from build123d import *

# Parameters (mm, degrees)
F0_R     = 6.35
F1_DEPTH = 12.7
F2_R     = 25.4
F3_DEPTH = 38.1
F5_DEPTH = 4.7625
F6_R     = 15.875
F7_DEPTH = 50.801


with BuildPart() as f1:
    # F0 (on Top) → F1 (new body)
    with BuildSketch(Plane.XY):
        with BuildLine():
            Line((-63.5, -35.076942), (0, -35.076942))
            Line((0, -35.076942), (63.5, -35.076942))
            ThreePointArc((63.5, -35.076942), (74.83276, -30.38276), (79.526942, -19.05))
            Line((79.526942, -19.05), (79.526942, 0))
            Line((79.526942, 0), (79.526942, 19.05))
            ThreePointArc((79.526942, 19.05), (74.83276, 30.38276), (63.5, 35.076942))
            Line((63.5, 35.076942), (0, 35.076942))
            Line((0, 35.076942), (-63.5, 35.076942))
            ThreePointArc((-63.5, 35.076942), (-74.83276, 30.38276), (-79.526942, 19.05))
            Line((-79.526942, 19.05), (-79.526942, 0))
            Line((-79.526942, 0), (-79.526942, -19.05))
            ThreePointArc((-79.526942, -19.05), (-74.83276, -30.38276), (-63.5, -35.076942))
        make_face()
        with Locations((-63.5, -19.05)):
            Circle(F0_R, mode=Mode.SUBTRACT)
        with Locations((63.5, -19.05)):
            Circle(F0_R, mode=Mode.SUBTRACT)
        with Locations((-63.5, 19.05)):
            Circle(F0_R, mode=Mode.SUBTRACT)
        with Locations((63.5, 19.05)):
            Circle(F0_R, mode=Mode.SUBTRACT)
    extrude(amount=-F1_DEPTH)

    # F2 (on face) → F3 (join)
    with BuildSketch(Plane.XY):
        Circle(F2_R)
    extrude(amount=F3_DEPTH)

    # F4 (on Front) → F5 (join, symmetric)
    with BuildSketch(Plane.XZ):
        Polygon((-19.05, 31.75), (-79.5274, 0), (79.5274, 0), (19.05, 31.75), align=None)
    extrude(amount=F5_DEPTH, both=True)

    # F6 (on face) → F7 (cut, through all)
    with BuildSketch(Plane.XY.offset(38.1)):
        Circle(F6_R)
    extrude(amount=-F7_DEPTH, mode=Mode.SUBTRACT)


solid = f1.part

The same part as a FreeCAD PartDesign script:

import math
import FreeCAD as App
import Part
import Sketcher
from FreeCAD import Vector
Q = App.Units.Quantity


def add_polygon(sketch, points):
    """Adds a closed chain of lines whose ends are joined by coincident constraints."""
    first, n = sketch.GeometryCount, len(points)
    for a, b in zip(points, points[1:] + points[:1]):
        sketch.addGeometry(Part.LineSegment(App.Vector(*a, 0), App.Vector(*b, 0)), False)
    for i in range(n):
        sketch.addConstraint(Sketcher.Constraint("Coincident", first + i, 2, first + (i + 1) % n, 1))

doc = App.newDocument("Part")
body = doc.addObject("PartDesign::Body", "Body")

# Sketch on XY plane
sketch1 = doc.addObject("Sketcher::SketchObject", "Sketch")
body.addObject(sketch1)
sketch1.AttachmentSupport = (doc.XY_Plane, [""])
sketch1.MapMode = "FlatFace"
sketch1.addGeometry([
    Part.LineSegment(Vector(-64, -35, 0), Vector(64, -35, 0)),  # 0
    Part.ArcOfCircle(Part.Circle(Vector(64, -19, 0), Vector(0, 0, 1), 16), math.radians(-90), math.radians(0)),  # 1
    Part.LineSegment(Vector(80, -19, 0), Vector(80, 19, 0)),  # 2
    Part.ArcOfCircle(Part.Circle(Vector(64, 19, 0), Vector(0, 0, 1), 16), math.radians(0), math.radians(90)),  # 3
    Part.LineSegment(Vector(64, 35, 0), Vector(-64, 35, 0)),  # 4
    Part.ArcOfCircle(Part.Circle(Vector(-64, 19, 0), Vector(0, 0, 1), 16), math.radians(90), math.radians(180)),  # 5
    Part.LineSegment(Vector(-80, 19, 0), Vector(-80, -19, 0)),  # 6
    Part.ArcOfCircle(Part.Circle(Vector(-64, -19, 0), Vector(0, 0, 1), 16), math.radians(180), math.radians(270)),  # 7
    Part.Circle(Vector(-64, -19, 0), Vector(0, 0, 1), 6),  # 8
    Part.Circle(Vector(64, -19, 0), Vector(0, 0, 1), 6),  # 9
    Part.Circle(Vector(-64, 19, 0), Vector(0, 0, 1), 6),  # 10
    Part.Circle(Vector(64, 19, 0), Vector(0, 0, 1), 6),  # 11
], False)
sketch1.addConstraint([
    Sketcher.Constraint("Tangent", 0, 2, 1, 1),
    Sketcher.Constraint("Tangent", 1, 2, 2, 1),
    Sketcher.Constraint("Tangent", 2, 2, 3, 1),
    Sketcher.Constraint("Tangent", 3, 2, 4, 1),
    Sketcher.Constraint("Tangent", 4, 2, 5, 1),
    Sketcher.Constraint("Tangent", 5, 2, 6, 1),
    Sketcher.Constraint("Tangent", 6, 2, 7, 1),
    Sketcher.Constraint("Tangent", 7, 2, 0, 1),
    Sketcher.Constraint("Horizontal", 0),
    Sketcher.Constraint("Vertical", 2),
    Sketcher.Constraint("Horizontal", 4),
    Sketcher.Constraint("Vertical", 6),
    Sketcher.Constraint("Coincident", 8, 3, 7, 3),
    Sketcher.Constraint("Coincident", 9, 3, 1, 3),
    Sketcher.Constraint("Coincident", 10, 3, 5, 3),
    Sketcher.Constraint("Coincident", 11, 3, 3, 3),
    Sketcher.Constraint("Equal", 1, 3),
    Sketcher.Constraint("Equal", 3, 5),
    Sketcher.Constraint("Equal", 5, 7),
    Sketcher.Constraint("Equal", 8, 9),
    Sketcher.Constraint("Equal", 9, 10),
    Sketcher.Constraint("Equal", 10, 11),
    Sketcher.Constraint("Symmetric", 1, 3, 5, 3, -1, 1),
    Sketcher.Constraint("Diameter", 8, Q("0.5 in")),
    Sketcher.Constraint("DistanceX", 0, 1, 0, 2, Q("5 in")),
    Sketcher.Constraint("DistanceY", 2, 1, 2, 2, Q("1.5 in")),
    Sketcher.Constraint("Radius", 1, 16.02694),
])
pad1 = doc.addObject("PartDesign::Pad", "Pad")
body.addObject(pad1)
pad1.Profile = sketch1
pad1.Length = Q("0.5 in")
pad1.Reversed = True

# Sketch on XY plane
sketch2 = doc.addObject("Sketcher::SketchObject", "Sketch001")
body.addObject(sketch2)
sketch2.AttachmentSupport = (doc.XY_Plane, [""])
sketch2.MapMode = "FlatFace"
sketch2.addGeometry(Part.Circle(Vector(0, 0, 0), Vector(0, 0, 1), 25), False)
sketch2.addConstraint([
    Sketcher.Constraint("Coincident", 0, 3, -1, 1),
    Sketcher.Constraint("Diameter", 0, Q("2 in")),
])
pad2 = doc.addObject("PartDesign::Pad", "Pad001")
body.addObject(pad2)
pad2.Profile = sketch2
pad2.Length = Q("1.5 in")

# Sketch on XZ plane
sketch3 = doc.addObject("Sketcher::SketchObject", "Sketch002")
body.addObject(sketch3)
sketch3.AttachmentSupport = (doc.XZ_Plane, [""])
sketch3.MapMode = "FlatFace"
add_polygon(sketch3, [(-19, 32), (-80, 0), (80, 0), (19, 32)])  # lines 0-3
sketch3.addConstraint([
    Sketcher.Constraint("Horizontal", 1),
    Sketcher.Constraint("Horizontal", 3),
    Sketcher.Constraint("Symmetric", 0, 2, 1, 2, -1, 1),
    Sketcher.Constraint("Equal", 0, 2),
    Sketcher.Constraint("DistanceX", 3, 2, 3, 1, Q("1.5 in")),
    Sketcher.Constraint("DistanceX", 1, 1, 1, 2, Q("6.262 in")),
    Sketcher.Constraint("DistanceY", -1, 1, 2, 2, Q("1.25 in")),
])
pad3 = doc.addObject("PartDesign::Pad", "Pad002")
body.addObject(pad3)
pad3.Profile = sketch3
pad3.Length = Q("0.375 in")
pad3.Midplane = True

# Sketch on XY plane
sketch4 = doc.addObject("Sketcher::SketchObject", "Sketch003")
body.addObject(sketch4)
sketch4.AttachmentSupport = (doc.XY_Plane, [""])
sketch4.MapMode = "FlatFace"
sketch4.AttachmentOffset = App.Placement(Vector(0, 0, 1.5 * 25.4), App.Rotation())
sketch4.addGeometry(Part.Circle(Vector(0, 0, 0), Vector(0, 0, 1), 16), False)
sketch4.addConstraint([
    Sketcher.Constraint("Coincident", 0, 3, -1, 1),
    Sketcher.Constraint("Diameter", 0, Q("1.25 in")),
])
pocket1 = doc.addObject("PartDesign::Pocket", "Pocket")
body.addObject(pocket1)
pocket1.Profile = sketch4
pocket1.Type = "ThroughAll"

doc.recompute()
